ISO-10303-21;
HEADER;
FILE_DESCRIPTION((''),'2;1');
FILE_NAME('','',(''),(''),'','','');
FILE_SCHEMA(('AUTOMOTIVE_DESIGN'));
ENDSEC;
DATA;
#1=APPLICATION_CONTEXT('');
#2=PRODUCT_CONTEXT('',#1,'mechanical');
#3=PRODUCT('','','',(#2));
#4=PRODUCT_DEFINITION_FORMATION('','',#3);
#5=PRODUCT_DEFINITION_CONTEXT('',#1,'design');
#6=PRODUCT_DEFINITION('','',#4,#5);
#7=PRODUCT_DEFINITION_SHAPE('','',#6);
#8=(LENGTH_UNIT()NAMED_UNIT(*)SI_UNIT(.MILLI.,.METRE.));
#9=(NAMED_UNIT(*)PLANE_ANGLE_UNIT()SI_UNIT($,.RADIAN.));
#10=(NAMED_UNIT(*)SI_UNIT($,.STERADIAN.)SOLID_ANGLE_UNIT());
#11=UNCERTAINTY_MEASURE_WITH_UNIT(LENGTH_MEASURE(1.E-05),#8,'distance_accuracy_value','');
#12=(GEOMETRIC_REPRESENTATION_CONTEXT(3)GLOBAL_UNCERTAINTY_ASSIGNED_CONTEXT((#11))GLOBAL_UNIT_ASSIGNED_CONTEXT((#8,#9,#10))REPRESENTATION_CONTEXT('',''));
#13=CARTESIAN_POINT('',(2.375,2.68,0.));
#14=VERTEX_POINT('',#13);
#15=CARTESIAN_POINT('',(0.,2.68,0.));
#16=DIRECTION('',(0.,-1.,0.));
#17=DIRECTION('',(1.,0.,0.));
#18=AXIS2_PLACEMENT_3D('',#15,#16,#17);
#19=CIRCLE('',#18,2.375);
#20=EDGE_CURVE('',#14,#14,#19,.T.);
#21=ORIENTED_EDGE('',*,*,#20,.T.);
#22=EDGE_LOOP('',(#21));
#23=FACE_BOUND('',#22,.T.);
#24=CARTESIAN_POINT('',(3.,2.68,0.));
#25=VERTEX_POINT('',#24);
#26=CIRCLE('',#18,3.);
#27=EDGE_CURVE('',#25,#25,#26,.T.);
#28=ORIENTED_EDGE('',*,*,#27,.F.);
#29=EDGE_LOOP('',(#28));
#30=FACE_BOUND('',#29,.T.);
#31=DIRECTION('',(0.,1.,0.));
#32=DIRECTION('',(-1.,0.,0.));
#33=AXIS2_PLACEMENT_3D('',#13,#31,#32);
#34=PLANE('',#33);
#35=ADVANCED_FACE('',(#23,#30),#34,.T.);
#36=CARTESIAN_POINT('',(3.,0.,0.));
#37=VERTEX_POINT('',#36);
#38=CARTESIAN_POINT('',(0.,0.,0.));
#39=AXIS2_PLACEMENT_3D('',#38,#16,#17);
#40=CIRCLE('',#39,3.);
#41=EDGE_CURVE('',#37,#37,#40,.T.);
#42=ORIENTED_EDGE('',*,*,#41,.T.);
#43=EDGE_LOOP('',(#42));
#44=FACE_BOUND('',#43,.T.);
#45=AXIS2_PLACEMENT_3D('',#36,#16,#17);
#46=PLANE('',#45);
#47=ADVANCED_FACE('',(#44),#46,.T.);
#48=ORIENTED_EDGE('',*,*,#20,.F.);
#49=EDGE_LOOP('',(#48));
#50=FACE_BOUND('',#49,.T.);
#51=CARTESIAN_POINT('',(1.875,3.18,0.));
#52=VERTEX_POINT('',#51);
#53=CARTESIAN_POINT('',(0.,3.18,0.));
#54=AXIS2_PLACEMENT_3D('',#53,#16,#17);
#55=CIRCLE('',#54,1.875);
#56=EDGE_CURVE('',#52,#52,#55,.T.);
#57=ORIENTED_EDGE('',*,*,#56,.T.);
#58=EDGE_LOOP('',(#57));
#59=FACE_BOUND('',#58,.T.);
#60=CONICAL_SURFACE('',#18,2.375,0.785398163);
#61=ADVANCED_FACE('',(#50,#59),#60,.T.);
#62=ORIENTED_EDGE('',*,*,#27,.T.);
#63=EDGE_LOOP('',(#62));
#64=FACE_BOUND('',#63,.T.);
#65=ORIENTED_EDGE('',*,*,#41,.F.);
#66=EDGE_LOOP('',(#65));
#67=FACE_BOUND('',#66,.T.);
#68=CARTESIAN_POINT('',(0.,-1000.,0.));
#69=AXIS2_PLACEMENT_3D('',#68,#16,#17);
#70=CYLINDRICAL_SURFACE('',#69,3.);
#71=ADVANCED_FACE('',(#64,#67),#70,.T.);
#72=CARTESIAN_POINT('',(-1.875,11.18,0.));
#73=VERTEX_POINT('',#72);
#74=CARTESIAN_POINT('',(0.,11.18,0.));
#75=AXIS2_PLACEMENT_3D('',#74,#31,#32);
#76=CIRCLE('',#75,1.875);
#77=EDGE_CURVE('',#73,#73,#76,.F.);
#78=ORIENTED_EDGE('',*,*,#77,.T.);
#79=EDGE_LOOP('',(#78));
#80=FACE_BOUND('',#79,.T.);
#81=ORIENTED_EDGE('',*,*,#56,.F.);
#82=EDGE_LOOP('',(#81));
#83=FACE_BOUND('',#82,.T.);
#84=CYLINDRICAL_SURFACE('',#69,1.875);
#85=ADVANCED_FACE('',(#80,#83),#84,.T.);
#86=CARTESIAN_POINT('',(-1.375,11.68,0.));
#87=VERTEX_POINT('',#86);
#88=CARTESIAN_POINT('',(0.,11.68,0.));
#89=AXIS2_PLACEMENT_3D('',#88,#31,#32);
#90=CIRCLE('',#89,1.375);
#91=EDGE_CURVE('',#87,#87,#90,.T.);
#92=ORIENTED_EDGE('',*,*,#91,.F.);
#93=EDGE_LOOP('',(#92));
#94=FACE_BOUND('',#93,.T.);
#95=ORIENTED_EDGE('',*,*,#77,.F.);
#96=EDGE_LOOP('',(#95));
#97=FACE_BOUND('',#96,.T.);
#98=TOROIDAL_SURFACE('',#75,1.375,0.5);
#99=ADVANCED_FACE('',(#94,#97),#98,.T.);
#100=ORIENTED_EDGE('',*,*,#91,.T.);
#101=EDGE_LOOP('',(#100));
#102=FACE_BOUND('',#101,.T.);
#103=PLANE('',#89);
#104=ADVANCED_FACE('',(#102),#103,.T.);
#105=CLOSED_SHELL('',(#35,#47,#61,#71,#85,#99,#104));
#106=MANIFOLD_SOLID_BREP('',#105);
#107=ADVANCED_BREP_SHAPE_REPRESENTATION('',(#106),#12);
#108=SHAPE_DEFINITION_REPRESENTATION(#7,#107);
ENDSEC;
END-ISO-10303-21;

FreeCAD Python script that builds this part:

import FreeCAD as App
import Part
import Sketcher

V = App.Vector
Q = App.Units.Quantity


def edges_at(feature, points):
    """Names of the edges that pass closest to the given points."""
    edges = feature.Shape.Edges
    near = lambda p: min(range(len(edges)), key=lambda i: edges[i].distToShape(Part.Vertex(*p))[0])
    return sorted({f"Edge{near(p) + 1}" for p in points})

doc = App.newDocument("Part")
body = doc.addObject("PartDesign::Body", "Body")

sketch1 = body.newObject("Sketcher::SketchObject", "Sketch")
sketch1.AttachmentSupport = (doc.getObject("XY_Plane"), [""])
sketch1.MapMode = "FlatFace"
sketch1.addGeometry(Part.LineSegment(V(1.9, 11.7, 0), V(0, 11.7, 0)), False)
sketch1.addGeometry(Part.LineSegment(V(0, 11.7, 0), V(0, 0, 0)), False)
sketch1.addGeometry(Part.LineSegment(V(0, 0, 0), V(3, 0, 0)), False)
sketch1.addGeometry(Part.LineSegment(V(3, 0, 0), V(3, 2.7, 0)), False)
sketch1.addGeometry(Part.LineSegment(V(3, 2.7, 0), V(2.4, 2.7, 0)), False)
sketch1.addGeometry(Part.LineSegment(V(2.4, 2.7, 0), V(1.9, 3.2, 0)), False)
sketch1.addGeometry(Part.LineSegment(V(1.9, 3.2, 0), V(1.9, 11.7, 0)), False)
sketch1.addConstraint(Sketcher.Constraint("Coincident", 0, 2, 1, 1))
sketch1.addConstraint(Sketcher.Constraint("Coincident", 1, 2, 2, 1))
sketch1.addConstraint(Sketcher.Constraint("Coincident", 2, 2, 3, 1))
sketch1.addConstraint(Sketcher.Constraint("Coincident", 3, 2, 4, 1))
sketch1.addConstraint(Sketcher.Constraint("Coincident", 4, 2, 5, 1))
sketch1.addConstraint(Sketcher.Constraint("Coincident", 5, 2, 6, 1))
sketch1.addConstraint(Sketcher.Constraint("Coincident", 6, 2, 0, 1))
sketch1.addConstraint(Sketcher.Constraint("Horizontal", 0))
sketch1.addConstraint(Sketcher.Constraint("Vertical", 1))
sketch1.addConstraint(Sketcher.Constraint("Horizontal", 2))
sketch1.addConstraint(Sketcher.Constraint("Vertical", 3))
sketch1.addConstraint(Sketcher.Constraint("Horizontal", 4))
sketch1.addConstraint(Sketcher.Constraint("Vertical", 6))
sketch1.addConstraint(Sketcher.Constraint("Coincident", 1, 2, -1, 1))
sketch1.addConstraint(Sketcher.Constraint("DistanceX", 2, 1, 2, 2, 3.0))
sketch1.addConstraint(Sketcher.Constraint("Angle", 5, Q("135 deg")))
sketch1.addConstraint(Sketcher.Constraint("DistanceY", 6, 1, 6, 2, 8.5))
sketch1.addConstraint(Sketcher.Constraint("DistanceY", 3, 2, 0, 2, 9.0))
sketch1.addConstraint(Sketcher.Constraint("DistanceY", 1, 2, 1, 1, 11.68))
sketch1.addConstraint(Sketcher.Constraint("DistanceX", 0, 2, 0, 1, 1.875))
revolution = body.newObject("PartDesign::Revolution", "Revolution")
revolution.Profile = sketch1
revolution.ReferenceAxis = (sketch1, ["V_Axis"])
revolution.Angle = 360
doc.recompute()

fillet = body.newObject("PartDesign::Fillet", "Fillet")
fillet.Base = (revolution, edges_at(revolution, [(-1.875, 11.68, 0)]))
fillet.Radius = 0.5

doc.recompute()
